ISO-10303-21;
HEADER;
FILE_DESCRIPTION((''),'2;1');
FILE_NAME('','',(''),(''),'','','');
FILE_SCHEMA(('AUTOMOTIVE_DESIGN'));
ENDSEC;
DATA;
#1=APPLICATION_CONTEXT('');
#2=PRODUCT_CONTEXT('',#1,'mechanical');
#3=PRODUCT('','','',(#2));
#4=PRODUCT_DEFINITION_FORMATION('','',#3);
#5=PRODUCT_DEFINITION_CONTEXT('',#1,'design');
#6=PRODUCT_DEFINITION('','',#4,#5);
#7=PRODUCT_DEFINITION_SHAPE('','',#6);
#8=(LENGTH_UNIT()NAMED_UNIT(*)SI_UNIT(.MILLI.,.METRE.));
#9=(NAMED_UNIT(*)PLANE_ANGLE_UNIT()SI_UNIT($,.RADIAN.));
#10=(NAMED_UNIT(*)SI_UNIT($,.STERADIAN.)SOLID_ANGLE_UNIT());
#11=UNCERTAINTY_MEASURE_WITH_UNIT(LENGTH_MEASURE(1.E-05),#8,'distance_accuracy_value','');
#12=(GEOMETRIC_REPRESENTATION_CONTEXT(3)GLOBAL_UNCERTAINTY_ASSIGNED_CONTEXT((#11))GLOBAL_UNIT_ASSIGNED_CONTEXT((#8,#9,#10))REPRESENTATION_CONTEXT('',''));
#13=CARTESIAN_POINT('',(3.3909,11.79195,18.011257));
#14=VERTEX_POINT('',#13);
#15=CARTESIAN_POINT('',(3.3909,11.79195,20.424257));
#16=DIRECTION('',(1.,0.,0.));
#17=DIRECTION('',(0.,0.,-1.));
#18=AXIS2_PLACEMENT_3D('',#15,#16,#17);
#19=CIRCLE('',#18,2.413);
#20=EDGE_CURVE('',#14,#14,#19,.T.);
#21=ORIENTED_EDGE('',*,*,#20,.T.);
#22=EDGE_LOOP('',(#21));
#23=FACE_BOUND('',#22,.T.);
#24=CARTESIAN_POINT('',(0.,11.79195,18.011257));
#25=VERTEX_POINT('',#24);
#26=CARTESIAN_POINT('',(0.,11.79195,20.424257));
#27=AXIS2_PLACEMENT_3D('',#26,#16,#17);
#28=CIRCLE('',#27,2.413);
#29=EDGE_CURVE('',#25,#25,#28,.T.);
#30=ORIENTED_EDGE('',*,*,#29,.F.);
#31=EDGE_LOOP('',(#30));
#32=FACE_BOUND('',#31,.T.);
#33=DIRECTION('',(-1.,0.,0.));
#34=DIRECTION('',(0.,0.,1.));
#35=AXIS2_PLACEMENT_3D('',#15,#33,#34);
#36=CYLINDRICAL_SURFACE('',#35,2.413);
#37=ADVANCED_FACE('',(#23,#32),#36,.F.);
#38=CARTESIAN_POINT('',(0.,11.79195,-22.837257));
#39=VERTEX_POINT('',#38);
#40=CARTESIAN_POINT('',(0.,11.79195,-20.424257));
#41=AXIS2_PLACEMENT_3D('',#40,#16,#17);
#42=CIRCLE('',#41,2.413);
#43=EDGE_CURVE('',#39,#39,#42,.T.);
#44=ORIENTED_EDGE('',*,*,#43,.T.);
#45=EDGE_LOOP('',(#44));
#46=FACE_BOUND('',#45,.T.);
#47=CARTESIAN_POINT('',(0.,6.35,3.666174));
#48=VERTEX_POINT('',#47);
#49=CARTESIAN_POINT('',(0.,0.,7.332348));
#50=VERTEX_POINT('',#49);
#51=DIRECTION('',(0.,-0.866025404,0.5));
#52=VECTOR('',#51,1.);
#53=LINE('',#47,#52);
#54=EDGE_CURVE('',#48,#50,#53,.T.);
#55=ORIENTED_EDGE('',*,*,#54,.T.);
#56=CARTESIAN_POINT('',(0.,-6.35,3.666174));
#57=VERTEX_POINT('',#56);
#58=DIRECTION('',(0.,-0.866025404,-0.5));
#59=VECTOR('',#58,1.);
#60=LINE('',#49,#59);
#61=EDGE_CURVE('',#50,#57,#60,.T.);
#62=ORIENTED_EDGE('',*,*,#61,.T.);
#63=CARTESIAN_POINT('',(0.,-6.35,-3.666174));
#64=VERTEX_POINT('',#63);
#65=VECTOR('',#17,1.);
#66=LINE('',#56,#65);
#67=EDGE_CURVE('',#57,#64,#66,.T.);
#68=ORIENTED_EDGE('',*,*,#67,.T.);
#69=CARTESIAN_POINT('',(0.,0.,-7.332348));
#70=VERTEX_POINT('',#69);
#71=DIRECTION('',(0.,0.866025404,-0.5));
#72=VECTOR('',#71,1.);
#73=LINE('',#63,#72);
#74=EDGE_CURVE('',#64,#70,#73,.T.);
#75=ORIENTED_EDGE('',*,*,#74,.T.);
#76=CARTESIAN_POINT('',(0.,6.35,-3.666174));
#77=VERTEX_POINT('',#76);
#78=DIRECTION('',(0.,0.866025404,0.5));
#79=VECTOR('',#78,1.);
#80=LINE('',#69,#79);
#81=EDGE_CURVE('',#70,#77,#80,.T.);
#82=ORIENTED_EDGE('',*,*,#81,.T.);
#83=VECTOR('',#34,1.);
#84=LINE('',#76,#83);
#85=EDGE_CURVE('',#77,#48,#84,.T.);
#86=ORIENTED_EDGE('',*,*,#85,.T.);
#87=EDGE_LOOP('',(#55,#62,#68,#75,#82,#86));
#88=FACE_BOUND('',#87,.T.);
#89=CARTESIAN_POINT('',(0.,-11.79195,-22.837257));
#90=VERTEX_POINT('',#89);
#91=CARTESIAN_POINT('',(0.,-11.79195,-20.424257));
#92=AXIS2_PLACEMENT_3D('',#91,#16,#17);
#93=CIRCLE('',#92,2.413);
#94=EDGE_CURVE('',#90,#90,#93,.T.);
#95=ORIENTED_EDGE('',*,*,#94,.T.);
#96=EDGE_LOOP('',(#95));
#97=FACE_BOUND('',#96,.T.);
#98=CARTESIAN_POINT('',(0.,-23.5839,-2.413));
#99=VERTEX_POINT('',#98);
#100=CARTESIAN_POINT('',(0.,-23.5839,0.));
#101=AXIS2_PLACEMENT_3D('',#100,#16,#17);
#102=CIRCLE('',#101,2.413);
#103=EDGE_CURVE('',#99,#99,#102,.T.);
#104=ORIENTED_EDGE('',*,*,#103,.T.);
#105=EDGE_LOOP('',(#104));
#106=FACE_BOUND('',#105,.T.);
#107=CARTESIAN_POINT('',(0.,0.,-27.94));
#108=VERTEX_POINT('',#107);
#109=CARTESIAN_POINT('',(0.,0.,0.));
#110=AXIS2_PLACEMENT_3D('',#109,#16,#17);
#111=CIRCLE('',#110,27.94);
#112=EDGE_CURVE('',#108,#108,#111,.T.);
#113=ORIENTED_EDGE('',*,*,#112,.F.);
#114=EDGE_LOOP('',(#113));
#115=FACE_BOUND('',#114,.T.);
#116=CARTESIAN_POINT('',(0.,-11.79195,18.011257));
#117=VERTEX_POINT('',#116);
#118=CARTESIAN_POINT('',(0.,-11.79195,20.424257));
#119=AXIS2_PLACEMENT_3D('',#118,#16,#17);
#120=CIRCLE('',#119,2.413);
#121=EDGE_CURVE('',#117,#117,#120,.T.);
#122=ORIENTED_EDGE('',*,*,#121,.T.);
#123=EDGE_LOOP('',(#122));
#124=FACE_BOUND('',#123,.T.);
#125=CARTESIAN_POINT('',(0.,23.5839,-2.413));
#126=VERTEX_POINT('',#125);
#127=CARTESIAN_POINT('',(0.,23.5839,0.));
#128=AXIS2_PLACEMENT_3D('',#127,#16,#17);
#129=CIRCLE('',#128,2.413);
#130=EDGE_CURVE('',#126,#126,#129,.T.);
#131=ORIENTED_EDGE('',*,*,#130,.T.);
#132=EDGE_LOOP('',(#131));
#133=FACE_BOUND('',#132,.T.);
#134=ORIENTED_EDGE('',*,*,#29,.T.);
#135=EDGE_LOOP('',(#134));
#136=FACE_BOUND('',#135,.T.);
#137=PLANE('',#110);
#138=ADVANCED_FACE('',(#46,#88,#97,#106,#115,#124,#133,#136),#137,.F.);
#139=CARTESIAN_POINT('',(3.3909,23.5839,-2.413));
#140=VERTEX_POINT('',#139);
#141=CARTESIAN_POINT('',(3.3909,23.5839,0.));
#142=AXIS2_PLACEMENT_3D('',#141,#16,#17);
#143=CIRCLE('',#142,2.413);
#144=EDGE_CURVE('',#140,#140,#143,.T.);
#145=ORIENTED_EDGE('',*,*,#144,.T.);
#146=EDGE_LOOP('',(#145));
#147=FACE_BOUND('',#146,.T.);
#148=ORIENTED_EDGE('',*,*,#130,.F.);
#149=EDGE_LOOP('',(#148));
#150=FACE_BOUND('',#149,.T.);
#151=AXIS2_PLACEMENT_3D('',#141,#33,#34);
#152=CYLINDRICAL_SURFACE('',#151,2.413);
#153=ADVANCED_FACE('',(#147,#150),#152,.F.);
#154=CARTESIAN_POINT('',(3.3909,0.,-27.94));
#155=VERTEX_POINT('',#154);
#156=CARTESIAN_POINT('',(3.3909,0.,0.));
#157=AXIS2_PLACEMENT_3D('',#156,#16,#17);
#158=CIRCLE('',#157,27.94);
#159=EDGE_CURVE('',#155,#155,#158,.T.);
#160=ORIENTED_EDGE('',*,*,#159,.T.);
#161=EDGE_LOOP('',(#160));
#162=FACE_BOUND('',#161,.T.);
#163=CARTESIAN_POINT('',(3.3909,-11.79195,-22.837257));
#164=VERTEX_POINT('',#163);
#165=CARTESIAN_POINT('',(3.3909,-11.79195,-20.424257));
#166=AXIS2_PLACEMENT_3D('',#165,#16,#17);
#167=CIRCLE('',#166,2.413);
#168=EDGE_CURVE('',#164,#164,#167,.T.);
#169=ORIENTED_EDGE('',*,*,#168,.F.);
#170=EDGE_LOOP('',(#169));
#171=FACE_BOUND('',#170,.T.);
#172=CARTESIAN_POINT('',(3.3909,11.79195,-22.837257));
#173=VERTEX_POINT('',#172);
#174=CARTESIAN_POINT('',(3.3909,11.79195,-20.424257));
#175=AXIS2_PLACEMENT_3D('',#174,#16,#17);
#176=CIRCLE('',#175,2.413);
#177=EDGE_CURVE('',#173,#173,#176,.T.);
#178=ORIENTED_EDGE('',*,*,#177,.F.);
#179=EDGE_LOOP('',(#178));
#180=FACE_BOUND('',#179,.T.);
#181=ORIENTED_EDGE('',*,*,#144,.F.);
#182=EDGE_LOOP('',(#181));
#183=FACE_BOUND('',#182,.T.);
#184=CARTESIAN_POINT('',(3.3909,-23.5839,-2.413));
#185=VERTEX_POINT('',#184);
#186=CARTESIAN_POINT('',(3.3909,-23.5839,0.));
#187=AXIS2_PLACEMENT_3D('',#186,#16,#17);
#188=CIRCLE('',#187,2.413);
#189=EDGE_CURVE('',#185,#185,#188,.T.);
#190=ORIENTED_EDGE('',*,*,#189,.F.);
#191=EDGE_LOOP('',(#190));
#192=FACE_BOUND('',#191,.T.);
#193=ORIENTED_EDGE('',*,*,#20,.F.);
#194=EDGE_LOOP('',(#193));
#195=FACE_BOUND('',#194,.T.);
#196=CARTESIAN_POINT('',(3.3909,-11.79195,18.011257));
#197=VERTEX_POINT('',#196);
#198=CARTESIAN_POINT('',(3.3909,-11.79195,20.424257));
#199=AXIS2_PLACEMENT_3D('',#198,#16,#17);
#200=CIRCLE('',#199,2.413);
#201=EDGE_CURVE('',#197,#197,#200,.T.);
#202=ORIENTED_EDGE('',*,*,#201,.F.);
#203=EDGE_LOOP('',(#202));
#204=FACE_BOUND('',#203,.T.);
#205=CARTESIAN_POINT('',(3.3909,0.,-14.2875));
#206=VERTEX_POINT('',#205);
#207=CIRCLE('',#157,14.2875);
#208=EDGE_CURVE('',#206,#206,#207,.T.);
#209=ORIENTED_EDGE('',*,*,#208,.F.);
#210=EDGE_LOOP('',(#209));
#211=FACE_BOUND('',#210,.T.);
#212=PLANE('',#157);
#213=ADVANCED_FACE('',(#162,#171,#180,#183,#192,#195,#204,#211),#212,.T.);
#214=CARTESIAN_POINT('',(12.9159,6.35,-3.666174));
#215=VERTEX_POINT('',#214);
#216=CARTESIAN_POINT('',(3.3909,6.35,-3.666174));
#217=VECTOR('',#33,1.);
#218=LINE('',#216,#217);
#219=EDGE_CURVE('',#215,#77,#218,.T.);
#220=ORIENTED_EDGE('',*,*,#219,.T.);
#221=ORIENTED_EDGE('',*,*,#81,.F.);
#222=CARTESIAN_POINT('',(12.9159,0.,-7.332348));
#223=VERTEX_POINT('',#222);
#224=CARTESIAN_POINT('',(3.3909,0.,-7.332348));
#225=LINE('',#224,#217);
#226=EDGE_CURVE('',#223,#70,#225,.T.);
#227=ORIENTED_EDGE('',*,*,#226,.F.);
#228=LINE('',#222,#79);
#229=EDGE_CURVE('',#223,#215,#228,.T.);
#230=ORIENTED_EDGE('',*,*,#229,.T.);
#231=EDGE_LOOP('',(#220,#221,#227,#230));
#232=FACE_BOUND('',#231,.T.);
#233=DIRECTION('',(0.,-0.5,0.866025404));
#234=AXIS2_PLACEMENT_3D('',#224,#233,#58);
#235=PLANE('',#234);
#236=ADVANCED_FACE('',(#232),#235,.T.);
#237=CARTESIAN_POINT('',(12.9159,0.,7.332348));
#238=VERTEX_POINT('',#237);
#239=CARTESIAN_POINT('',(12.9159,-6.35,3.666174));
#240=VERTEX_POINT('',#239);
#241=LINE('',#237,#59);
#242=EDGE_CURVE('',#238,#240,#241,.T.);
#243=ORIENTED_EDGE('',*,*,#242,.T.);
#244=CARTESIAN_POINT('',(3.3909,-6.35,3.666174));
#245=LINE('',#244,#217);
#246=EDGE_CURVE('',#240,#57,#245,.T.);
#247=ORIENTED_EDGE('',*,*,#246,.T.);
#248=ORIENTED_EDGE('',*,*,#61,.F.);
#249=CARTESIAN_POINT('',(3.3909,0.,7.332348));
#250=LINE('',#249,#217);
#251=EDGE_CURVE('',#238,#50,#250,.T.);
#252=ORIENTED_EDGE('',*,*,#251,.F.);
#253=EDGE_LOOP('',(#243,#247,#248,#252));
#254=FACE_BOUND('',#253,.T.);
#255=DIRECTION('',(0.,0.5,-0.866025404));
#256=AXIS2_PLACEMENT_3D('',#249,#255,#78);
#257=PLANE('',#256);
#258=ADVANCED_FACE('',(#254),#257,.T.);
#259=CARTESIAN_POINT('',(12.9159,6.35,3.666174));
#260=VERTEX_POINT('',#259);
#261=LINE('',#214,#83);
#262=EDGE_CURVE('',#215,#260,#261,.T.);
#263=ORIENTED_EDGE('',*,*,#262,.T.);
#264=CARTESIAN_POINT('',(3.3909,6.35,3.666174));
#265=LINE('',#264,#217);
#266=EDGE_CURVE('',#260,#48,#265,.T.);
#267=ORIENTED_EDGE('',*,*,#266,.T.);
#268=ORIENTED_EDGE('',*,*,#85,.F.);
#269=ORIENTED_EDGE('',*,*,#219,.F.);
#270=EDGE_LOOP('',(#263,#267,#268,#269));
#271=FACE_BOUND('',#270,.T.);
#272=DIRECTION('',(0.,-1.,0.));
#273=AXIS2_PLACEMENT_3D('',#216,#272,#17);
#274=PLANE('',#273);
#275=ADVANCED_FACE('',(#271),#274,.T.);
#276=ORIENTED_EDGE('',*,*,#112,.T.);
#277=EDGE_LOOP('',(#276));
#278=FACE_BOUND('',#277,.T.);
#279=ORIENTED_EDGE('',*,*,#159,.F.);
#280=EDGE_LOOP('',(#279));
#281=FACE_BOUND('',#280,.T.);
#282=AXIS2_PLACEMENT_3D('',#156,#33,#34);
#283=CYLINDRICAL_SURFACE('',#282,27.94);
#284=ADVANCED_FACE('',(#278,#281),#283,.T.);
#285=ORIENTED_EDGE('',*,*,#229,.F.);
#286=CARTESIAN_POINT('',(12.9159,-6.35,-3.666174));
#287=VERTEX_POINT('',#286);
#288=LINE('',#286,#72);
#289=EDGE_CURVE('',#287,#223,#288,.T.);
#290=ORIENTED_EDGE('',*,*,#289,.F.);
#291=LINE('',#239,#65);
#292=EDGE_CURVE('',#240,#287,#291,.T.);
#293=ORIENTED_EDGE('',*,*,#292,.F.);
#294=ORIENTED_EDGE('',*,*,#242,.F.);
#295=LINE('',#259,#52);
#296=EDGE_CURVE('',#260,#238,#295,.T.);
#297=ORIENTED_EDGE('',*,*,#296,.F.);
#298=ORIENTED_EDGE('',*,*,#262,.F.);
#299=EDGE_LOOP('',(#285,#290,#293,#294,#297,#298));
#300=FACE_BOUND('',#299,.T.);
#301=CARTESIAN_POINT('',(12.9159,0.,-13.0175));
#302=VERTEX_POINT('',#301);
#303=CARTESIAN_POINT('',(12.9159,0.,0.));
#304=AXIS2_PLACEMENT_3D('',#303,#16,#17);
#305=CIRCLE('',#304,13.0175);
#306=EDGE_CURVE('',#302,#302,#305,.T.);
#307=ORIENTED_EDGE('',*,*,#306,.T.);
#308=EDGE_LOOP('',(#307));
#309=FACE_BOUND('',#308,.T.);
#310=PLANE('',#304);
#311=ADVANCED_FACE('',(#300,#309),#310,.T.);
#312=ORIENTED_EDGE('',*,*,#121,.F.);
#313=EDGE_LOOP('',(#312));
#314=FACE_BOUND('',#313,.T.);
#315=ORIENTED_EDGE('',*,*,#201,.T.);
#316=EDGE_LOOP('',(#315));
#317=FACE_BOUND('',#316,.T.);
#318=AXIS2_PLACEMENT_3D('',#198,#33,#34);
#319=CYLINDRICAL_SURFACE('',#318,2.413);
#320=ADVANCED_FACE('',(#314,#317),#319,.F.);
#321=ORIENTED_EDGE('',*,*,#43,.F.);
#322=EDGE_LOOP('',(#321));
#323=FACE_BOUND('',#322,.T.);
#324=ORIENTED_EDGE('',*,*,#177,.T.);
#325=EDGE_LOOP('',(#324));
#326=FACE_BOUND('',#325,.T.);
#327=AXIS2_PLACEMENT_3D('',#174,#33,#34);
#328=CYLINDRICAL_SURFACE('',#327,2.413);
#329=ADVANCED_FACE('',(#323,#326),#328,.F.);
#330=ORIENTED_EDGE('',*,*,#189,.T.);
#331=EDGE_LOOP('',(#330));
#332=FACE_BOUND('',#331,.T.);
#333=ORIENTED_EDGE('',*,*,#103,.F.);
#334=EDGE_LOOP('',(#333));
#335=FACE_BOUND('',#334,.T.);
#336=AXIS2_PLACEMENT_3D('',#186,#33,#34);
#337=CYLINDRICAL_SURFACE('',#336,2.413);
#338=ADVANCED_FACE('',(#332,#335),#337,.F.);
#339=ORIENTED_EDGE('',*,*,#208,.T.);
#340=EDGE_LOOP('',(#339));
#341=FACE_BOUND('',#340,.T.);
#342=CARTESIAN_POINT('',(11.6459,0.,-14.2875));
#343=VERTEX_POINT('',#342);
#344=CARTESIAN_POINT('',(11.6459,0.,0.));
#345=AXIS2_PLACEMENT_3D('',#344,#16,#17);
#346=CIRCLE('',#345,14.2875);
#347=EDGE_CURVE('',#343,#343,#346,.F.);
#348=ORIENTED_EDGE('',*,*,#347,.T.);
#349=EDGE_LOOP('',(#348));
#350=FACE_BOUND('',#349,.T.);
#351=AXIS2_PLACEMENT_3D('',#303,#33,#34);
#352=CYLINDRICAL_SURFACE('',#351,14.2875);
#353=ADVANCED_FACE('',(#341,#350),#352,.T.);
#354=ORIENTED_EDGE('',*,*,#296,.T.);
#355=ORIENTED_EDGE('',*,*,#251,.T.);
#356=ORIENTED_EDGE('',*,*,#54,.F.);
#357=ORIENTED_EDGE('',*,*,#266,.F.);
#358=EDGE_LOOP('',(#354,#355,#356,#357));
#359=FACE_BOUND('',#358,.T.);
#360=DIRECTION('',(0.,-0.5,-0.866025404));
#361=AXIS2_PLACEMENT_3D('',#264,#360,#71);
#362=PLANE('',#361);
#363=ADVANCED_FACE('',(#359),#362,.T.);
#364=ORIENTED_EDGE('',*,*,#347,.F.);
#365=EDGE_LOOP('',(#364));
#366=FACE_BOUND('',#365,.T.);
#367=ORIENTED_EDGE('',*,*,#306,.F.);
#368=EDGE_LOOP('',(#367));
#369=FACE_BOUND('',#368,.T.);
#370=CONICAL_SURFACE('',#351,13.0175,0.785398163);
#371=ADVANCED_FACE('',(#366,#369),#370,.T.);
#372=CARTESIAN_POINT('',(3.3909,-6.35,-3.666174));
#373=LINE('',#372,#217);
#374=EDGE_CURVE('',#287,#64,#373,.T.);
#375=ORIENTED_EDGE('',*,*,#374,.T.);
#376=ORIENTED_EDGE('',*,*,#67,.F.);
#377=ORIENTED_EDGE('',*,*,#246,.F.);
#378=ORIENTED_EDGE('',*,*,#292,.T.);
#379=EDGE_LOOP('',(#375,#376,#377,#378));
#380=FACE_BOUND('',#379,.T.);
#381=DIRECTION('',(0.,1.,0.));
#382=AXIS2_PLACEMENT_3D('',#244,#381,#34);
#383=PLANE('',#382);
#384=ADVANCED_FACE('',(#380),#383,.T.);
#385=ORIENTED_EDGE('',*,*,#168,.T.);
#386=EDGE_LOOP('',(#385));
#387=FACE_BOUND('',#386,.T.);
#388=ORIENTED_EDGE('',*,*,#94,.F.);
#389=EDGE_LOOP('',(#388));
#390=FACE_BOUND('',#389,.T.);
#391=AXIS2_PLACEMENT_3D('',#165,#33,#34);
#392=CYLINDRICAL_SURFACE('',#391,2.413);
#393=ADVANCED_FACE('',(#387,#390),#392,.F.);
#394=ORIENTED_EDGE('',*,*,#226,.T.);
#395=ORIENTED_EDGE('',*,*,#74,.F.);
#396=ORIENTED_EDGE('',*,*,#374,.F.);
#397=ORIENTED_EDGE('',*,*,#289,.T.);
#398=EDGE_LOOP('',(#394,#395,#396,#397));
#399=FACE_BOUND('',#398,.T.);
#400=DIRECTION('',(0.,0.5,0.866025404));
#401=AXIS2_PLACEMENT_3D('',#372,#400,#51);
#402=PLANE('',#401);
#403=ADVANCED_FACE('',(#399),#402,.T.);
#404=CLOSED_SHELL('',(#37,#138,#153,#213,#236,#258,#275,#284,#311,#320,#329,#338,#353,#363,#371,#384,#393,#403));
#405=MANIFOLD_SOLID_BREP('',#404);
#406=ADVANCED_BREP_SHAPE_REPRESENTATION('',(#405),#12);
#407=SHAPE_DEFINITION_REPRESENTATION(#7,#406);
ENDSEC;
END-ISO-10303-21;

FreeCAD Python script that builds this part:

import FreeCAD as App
import Part
import Sketcher
from FreeCAD import Vector
Q = App.Units.Quantity


def edges_at(feature, points):
    """Names of the edges that pass closest to the given points."""
    edges = feature.Shape.Edges
    near = lambda p: min(range(len(edges)), key=lambda i: edges[i].distToShape(Part.Vertex(*p))[0])
    return sorted({f"Edge{near(p) + 1}" for p in points})


def add_polygon(sketch, points):
    """Adds a closed chain of lines whose ends are joined by coincident constraints."""
    first, n = sketch.GeometryCount, len(points)
    for a, b in zip(points, points[1:] + points[:1]):
        sketch.addGeometry(Part.LineSegment(App.Vector(*a, 0), App.Vector(*b, 0)), False)
    for i in range(n):
        sketch.addConstraint(Sketcher.Constraint("Coincident", first + i, 2, first + (i + 1) % n, 1))

doc = App.newDocument("Part")
body = doc.addObject("PartDesign::Body", "Body")

# Sketch on YZ plane
sketch1 = body.newObject("Sketcher::SketchObject", "Sketch")
sketch1.AttachmentSupport = (doc.getObject("YZ_Plane"), [""])
sketch1.MapMode = "FlatFace"
sketch1.addGeometry(Part.Circle(Vector(0, 0, 0), Vector(0, 0, 1), 27.9), False)  # 0
sketch1.addGeometry(Part.Circle(Vector(-11.8, 20.4, 0), Vector(0, 0, 1), 2.4), False)  # 1
sketch1.addGeometry(Part.Circle(Vector(-23.6, 0, 0), Vector(0, 0, 1), 2.4), False)  # 2
sketch1.addGeometry(Part.Circle(Vector(-11.8, -20.4, 0), Vector(0, 0, 1), 2.4), False)  # 3
sketch1.addGeometry(Part.Circle(Vector(11.8, 20.4, 0), Vector(0, 0, 1), 2.4), False)  # 4
add_polygon(sketch1, [(6.3, -3.7), (0, -7.3), (-6.3, -3.7), (-6.3, 3.7), (0, 7.3), (6.3, 3.7)])  # lines 5-10
sketch1.addGeometry(Part.Circle(Vector(11.8, -20.4, 0), Vector(0, 0, 1), 2.4), False)  # 11
sketch1.addGeometry(Part.Circle(Vector(23.6, 0, 0), Vector(0, 0, 1), 2.4), False)  # 12
sketch1.addConstraint(Sketcher.Constraint("Vertical", 7))
sketch1.addConstraint(Sketcher.Constraint("Vertical", 10))
sketch1.addConstraint(Sketcher.Constraint("Coincident", 0, 3, -1, 1))
sketch1.addConstraint(Sketcher.Constraint("Equal", 1, 2))
sketch1.addConstraint(Sketcher.Constraint("Equal", 2, 3))
sketch1.addConstraint(Sketcher.Constraint("Equal", 3, 4))
sketch1.addConstraint(Sketcher.Constraint("Equal", 4, 11))
sketch1.addConstraint(Sketcher.Constraint("Equal", 11, 12))
sketch1.addConstraint(Sketcher.Constraint("Symmetric", 3, 3, 4, 3, -1, 1))
sketch1.addConstraint(Sketcher.Constraint("Symmetric", 1, 3, 11, 3, -1, 1))
sketch1.addConstraint(Sketcher.Constraint("Symmetric", 2, 3, 12, 3, -1, 1))
sketch1.addConstraint(Sketcher.Constraint("Symmetric", 5, 2, 8, 2, -1, 1))
sketch1.addConstraint(Sketcher.Constraint("Symmetric", 6, 2, 9, 2, -1, 1))
sketch1.addConstraint(Sketcher.Constraint("Symmetric", 1, 3, 4, 3, -2))
sketch1.addConstraint(Sketcher.Constraint("PointOnObject", 2, 3, -1))
sketch1.addConstraint(Sketcher.Constraint("PointOnObject", 5, 2, -2))
sketch1.addConstraint(Sketcher.Constraint("Parallel", 5, 8))
sketch1.addConstraint(Sketcher.Constraint("Horizontal", 7, 2, 9, 2))
sketch1.addConstraint(Sketcher.Constraint("Diameter", 0, Q("2.2 in")))
sketch1.addConstraint(Sketcher.Constraint("Diameter", 1, Q("0.19 in")))
sketch1.addConstraint(Sketcher.Constraint("Angle", 5, Q("-150 deg")))
sketch1.addConstraint(Sketcher.Constraint("DistanceX", 7, 2, 9, 2, Q("0.5 in")))
sketch1.addConstraint(Sketcher.Constraint("DistanceX", 2, 3, -1, 1, Q("0.9285 in")))
sketch1.addConstraint(Sketcher.Constraint("DistanceX", 1, 3, 4, 3, Q("0.9285 in")))
sketch1.addConstraint(Sketcher.Constraint("DistanceY", 7, 1, 7, 2, Q("7.332348 mm")))
sketch1.addConstraint(Sketcher.Constraint("DistanceY", 3, 3, 5, 2, Q("13.091908 mm")))
pad1 = body.newObject("PartDesign::Pad", "Pad")
pad1.Profile = sketch1
pad1.Length = Q("0.1335 in")

# Sketch on YZ plane
sketch2 = body.newObject("Sketcher::SketchObject", "Sketch001")
sketch2.AttachmentSupport = (doc.getObject("YZ_Plane"), [""])
sketch2.MapMode = "FlatFace"
sketch2.AttachmentOffset = App.Placement(Vector(0, 0, 0.1335 * 25.4), App.Rotation())
sketch2.addGeometry(Part.Circle(Vector(0, 0, 0), Vector(0, 0, 1), 14), False)  # 0
add_polygon(sketch2, [(0, -7), (-6, -4), (-6, 4), (0, 7), (6, 4), (6, -4)])  # lines 1-6
sketch2.addConstraint(Sketcher.Constraint("Vertical", 2))
sketch2.addConstraint(Sketcher.Constraint("Vertical", 5))
sketch2.addConstraint(Sketcher.Constraint("Coincident", 0, 3, -1, 1))
sketch2.addConstraint(Sketcher.Constraint("Symmetric", 1, 2, 4, 2, -1, 1))
sketch2.addConstraint(Sketcher.Constraint("Symmetric", 3, 2, 6, 2, -1, 1))
sketch2.addConstraint(Sketcher.Constraint("PointOnObject", 3, 2, -2))
sketch2.addConstraint(Sketcher.Constraint("Parallel", 3, 6))
sketch2.addConstraint(Sketcher.Constraint("Horizontal", 2, 2, 4, 2))
sketch2.addConstraint(Sketcher.Constraint("Diameter", 0, Q("1.125 in")))
sketch2.addConstraint(Sketcher.Constraint("Angle", 1, Q("150 deg")))
sketch2.addConstraint(Sketcher.Constraint("DistanceX", 2, 2, 4, 2, Q("0.5 in")))
sketch2.addConstraint(Sketcher.Constraint("DistanceY", 2, 1, 2, 2, Q("7.332348 mm")))
pad2 = body.newObject("PartDesign::Pad", "Pad001")
pad2.Profile = sketch2
pad2.Length = Q("0.375 in")
doc.recompute()

chamfer = body.newObject("PartDesign::Chamfer", "Chamfer")
chamfer.Base = (pad2, edges_at(pad2, [(12.916, 0, 14.287)]))
chamfer.Size = Q("0.05 in")

doc.recompute()
